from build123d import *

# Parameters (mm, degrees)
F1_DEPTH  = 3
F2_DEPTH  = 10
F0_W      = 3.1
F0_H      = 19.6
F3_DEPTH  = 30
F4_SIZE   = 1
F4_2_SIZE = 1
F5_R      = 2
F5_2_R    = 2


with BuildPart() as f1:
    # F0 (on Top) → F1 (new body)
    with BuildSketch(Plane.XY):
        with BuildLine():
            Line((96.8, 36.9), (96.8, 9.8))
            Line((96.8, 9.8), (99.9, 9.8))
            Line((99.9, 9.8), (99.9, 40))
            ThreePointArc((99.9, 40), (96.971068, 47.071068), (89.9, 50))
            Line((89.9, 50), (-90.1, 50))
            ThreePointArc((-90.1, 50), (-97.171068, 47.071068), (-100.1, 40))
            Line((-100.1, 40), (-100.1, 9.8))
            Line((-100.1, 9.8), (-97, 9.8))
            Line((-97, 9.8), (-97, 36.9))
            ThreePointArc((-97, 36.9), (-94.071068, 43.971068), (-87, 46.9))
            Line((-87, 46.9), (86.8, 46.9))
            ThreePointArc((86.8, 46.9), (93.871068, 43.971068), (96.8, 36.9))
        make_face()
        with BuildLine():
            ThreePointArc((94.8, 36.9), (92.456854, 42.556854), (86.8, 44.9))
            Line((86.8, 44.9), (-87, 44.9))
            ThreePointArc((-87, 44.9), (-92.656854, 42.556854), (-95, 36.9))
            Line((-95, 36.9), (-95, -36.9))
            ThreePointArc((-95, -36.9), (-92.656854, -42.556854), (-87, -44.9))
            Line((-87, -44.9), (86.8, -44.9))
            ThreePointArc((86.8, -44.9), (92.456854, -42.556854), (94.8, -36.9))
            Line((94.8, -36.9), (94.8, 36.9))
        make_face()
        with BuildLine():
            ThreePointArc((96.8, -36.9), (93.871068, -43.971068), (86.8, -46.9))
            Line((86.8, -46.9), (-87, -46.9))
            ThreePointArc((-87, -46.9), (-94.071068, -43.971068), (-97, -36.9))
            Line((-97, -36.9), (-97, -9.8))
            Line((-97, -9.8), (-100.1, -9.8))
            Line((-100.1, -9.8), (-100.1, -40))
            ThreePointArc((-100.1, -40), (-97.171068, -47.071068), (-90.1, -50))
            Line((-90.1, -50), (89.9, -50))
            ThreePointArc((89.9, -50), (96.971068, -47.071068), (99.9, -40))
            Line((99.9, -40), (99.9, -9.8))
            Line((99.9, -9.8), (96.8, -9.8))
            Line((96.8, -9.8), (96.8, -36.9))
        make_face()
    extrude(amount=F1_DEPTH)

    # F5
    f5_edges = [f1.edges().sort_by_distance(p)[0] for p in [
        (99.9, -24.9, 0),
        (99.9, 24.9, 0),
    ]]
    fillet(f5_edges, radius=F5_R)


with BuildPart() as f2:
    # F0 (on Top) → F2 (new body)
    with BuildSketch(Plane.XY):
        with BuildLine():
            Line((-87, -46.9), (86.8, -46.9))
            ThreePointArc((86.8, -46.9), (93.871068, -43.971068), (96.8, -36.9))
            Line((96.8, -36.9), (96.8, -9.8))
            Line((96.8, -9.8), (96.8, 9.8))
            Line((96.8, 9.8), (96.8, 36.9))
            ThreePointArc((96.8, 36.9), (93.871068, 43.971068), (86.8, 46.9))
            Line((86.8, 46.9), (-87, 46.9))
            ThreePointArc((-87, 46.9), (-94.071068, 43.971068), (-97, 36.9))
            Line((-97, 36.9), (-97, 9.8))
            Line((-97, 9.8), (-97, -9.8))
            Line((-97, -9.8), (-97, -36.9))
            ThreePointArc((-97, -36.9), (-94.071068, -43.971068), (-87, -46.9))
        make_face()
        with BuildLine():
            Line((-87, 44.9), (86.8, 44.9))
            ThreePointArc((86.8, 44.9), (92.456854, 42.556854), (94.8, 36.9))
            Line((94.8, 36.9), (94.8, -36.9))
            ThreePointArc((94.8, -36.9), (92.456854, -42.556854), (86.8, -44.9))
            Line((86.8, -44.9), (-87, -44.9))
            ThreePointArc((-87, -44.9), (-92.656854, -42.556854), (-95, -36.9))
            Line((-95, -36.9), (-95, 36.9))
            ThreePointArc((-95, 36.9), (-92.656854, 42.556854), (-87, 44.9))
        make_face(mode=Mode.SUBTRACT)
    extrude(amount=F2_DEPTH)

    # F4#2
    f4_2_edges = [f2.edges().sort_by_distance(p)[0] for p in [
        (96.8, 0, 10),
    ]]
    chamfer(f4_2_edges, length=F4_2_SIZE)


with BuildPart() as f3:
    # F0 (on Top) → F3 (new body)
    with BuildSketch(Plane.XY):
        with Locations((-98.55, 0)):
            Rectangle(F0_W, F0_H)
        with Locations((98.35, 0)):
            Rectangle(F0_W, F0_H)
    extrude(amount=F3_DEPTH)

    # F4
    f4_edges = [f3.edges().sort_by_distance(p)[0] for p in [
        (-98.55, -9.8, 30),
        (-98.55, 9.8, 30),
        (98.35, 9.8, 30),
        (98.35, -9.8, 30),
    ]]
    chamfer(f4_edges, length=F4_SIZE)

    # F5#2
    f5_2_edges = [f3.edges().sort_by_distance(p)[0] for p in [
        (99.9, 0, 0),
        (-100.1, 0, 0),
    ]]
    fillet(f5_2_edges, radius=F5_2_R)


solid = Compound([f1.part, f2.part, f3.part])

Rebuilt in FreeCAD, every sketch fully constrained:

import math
import FreeCAD as App
import Part
import Sketcher
from FreeCAD import Vector
Q = App.Units.Quantity


def edges_at(feature, points):
    """Names of the edges that pass closest to the given points."""
    edges = feature.Shape.Edges
    near = lambda p: min(range(len(edges)), key=lambda i: edges[i].distToShape(Part.Vertex(*p))[0])
    return sorted({f"Edge{near(p) + 1}" for p in points})


def add_polygon(sketch, points):
    """Adds a closed chain of lines whose ends are joined by coincident constraints."""
    first, n = sketch.GeometryCount, len(points)
    for a, b in zip(points, points[1:] + points[:1]):
        sketch.addGeometry(Part.LineSegment(App.Vector(*a, 0), App.Vector(*b, 0)), False)
    for i in range(n):
        sketch.addConstraint(Sketcher.Constraint("Coincident", first + i, 2, first + (i + 1) % n, 1))

doc = App.newDocument("Part")
params = doc.addObject("Spreadsheet::Sheet", "Params")
for row, (alias, value) in enumerate([
    ("sketch1_radius", "9.999999 mm"),
    ("sketch1_radius2", "8.000001 mm"),
    ("sketch1_width", "180 mm"),
    ("sketch1_width2", "3.1 mm"),
    ("sketch1_height", "27.1 mm"),
    ("pad1_length", "3 mm"),
    ("fillet_radius", "2 mm"),
    ("sketch2_radius", "9.999999 mm"),
    ("sketch2_radius2", "8.000001 mm"),
    ("sketch2_width", "173.8 mm"),
    ("sketch2_height", "73.8 mm"),
    ("pad2_length", "10 mm"),
    ("chamfer_size", "1 mm"),
    ("sketch3_width", "3.1 mm"),
    ("sketch3_height", "19.6 mm"),
    ("pad3_length", "30 mm"),
    ("chamfer2_size", "1 mm"),
    ("fillet2_radius", "2 mm"),
], start=1):
    params.set(f"A{row}", alias)
    params.set(f"B{row}", "=" + value)
    params.setAlias(f"B{row}", alias)

body = doc.addObject("PartDesign::Body", "Body")
body.AllowCompound = True

# Sketch on XY plane
sketch1 = doc.addObject("Sketcher::SketchObject", "Sketch")
body.addObject(sketch1)
sketch1.AttachmentSupport = (doc.XY_Plane, [""])
sketch1.MapMode = "FlatFace"
sketch1.addGeometry([
    Part.LineSegment(Vector(96.8, 36.9, 0), Vector(96.8, 9.8, 0)),  # 0
    Part.LineSegment(Vector(96.8, 9.8, 0), Vector(99.9, 9.8, 0)),  # 1
    Part.LineSegment(Vector(99.9, 9.8, 0), Vector(99.9, 40, 0)),  # 2
    Part.ArcOfCircle(Part.Circle(Vector(89.9, 40, 0), Vector(0, 0, 1), 10), math.radians(0), math.radians(90)),  # 3
    Part.LineSegment(Vector(89.9, 50, 0), Vector(-90.1, 50, 0)),  # 4
    Part.ArcOfCircle(Part.Circle(Vector(-90.1, 40, 0), Vector(0, 0, 1), 10), math.radians(90), math.radians(180)),  # 5
    Part.LineSegment(Vector(-100.1, 40, 0), Vector(-100.1, 9.8, 0)),  # 6
    Part.LineSegment(Vector(-100.1, 9.8, 0), Vector(-97, 9.8, 0)),  # 7
    Part.LineSegment(Vector(-97, 9.8, 0), Vector(-97, 36.9, 0)),  # 8
    Part.ArcOfCircle(Part.Circle(Vector(-87, 36.9, 0), Vector(0, 0, 1), 10), math.radians(90), math.radians(180)),  # 9
    Part.LineSegment(Vector(-87, 46.9, 0), Vector(86.8, 46.9, 0)),  # 10
    Part.ArcOfCircle(Part.Circle(Vector(86.8, 36.9, 0), Vector(0, 0, 1), 10), math.radians(0), math.radians(90)),  # 11
    Part.ArcOfCircle(Part.Circle(Vector(86.8, 36.9, 0), Vector(0, 0, 1), 8), math.radians(0), math.radians(90)),  # 12
    Part.LineSegment(Vector(86.8, 44.9, 0), Vector(-87, 44.9, 0)),  # 13
    Part.ArcOfCircle(Part.Circle(Vector(-87, 36.9, 0), Vector(0, 0, 1), 8), math.radians(90), math.radians(180)),  # 14
    Part.LineSegment(Vector(-95, 36.9, 0), Vector(-95, -36.9, 0)),  # 15
    Part.ArcOfCircle(Part.Circle(Vector(-87, -36.9, 0), Vector(0, 0, 1), 8), math.radians(-180), math.radians(-90)),  # 16
    Part.LineSegment(Vector(-87, -44.9, 0), Vector(86.8, -44.9, 0)),  # 17
    Part.ArcOfCircle(Part.Circle(Vector(86.8, -36.9, 0), Vector(0, 0, 1), 8), math.radians(-90), math.radians(0)),  # 18
    Part.LineSegment(Vector(94.8, -36.9, 0), Vector(94.8, 36.9, 0)),  # 19
    Part.ArcOfCircle(Part.Circle(Vector(86.8, -36.9, 0), Vector(0, 0, 1), 10), math.radians(-90), math.radians(0)),  # 20
    Part.LineSegment(Vector(86.8, -46.9, 0), Vector(-87, -46.9, 0)),  # 21
    Part.ArcOfCircle(Part.Circle(Vector(-87, -36.9, 0), Vector(0, 0, 1), 10), math.radians(180), math.radians(270)),  # 22
    Part.LineSegment(Vector(-97, -36.9, 0), Vector(-97, -9.8, 0)),  # 23
    Part.LineSegment(Vector(-97, -9.8, 0), Vector(-100.1, -9.8, 0)),  # 24
    Part.LineSegment(Vector(-100.1, -9.8, 0), Vector(-100.1, -40, 0)),  # 25
    Part.ArcOfCircle(Part.Circle(Vector(-90.1, -40, 0), Vector(0, 0, 1), 10), math.radians(180), math.radians(270)),  # 26
    Part.LineSegment(Vector(-90.1, -50, 0), Vector(89.9, -50, 0)),  # 27
    Part.ArcOfCircle(Part.Circle(Vector(89.9, -40, 0), Vector(0, 0, 1), 10), math.radians(-90), math.radians(0)),  # 28
    Part.LineSegment(Vector(99.9, -40, 0), Vector(99.9, -9.8, 0)),  # 29
    Part.LineSegment(Vector(99.9, -9.8, 0), Vector(96.8, -9.8, 0)),  # 30
    Part.LineSegment(Vector(96.8, -9.8, 0), Vector(96.8, -36.9, 0)),  # 31
], False)
sketch1.addConstraint([
    Sketcher.Constraint("Coincident", 0, 2, 1, 1),
    Sketcher.Constraint("Coincident", 1, 2, 2, 1),
    Sketcher.Constraint("Tangent", 2, 2, 3, 1),
    Sketcher.Constraint("Tangent", 3, 2, 4, 1),
    Sketcher.Constraint("Tangent", 4, 2, 5, 1),
    Sketcher.Constraint("Tangent", 5, 2, 6, 1),
    Sketcher.Constraint("Coincident", 6, 2, 7, 1),
    Sketcher.Constraint("Coincident", 7, 2, 8, 1),
    Sketcher.Constraint("Tangent", 8, 2, 9, 2),
    Sketcher.Constraint("Tangent", 9, 1, 10, 1),
    Sketcher.Constraint("Tangent", 10, 2, 11, 2),
    Sketcher.Constraint("Tangent", 11, 1, 0, 1),
    Sketcher.Constraint("Tangent", 12, 2, 13, 1),
    Sketcher.Constraint("Tangent", 13, 2, 14, 1),
    Sketcher.Constraint("Tangent", 14, 2, 15, 1),
    Sketcher.Constraint("Tangent", 15, 2, 16, 1),
    Sketcher.Constraint("Tangent", 16, 2, 17, 1),
    Sketcher.Constraint("Tangent", 17, 2, 18, 1),
    Sketcher.Constraint("Tangent", 18, 2, 19, 1),
    Sketcher.Constraint("Tangent", 19, 2, 12, 1),
    Sketcher.Constraint("Tangent", 20, 1, 21, 1),
    Sketcher.Constraint("Tangent", 21, 2, 22, 2),
    Sketcher.Constraint("Tangent", 22, 1, 23, 1),
    Sketcher.Constraint("Coincident", 23, 2, 24, 1),
    Sketcher.Constraint("Coincident", 24, 2, 25, 1),
    Sketcher.Constraint("Tangent", 25, 2, 26, 1),
    Sketcher.Constraint("Tangent", 26, 2, 27, 1),
    Sketcher.Constraint("Tangent", 27, 2, 28, 1),
    Sketcher.Constraint("Tangent", 28, 2, 29, 1),
    Sketcher.Constraint("Coincident", 29, 2, 30, 1),
    Sketcher.Constraint("Coincident", 30, 2, 31, 1),
    Sketcher.Constraint("Tangent", 31, 2, 20, 2),
    Sketcher.Constraint("Vertical", 0),
    Sketcher.Constraint("Horizontal", 1),
    Sketcher.Constraint("Vertical", 2),
    Sketcher.Constraint("Horizontal", 4),
    Sketcher.Constraint("Vertical", 6),
    Sketcher.Constraint("Horizontal", 7),
    Sketcher.Constraint("Vertical", 8),
    Sketcher.Constraint("Horizontal", 10),
    Sketcher.Constraint("Horizontal", 13),
    Sketcher.Constraint("Vertical", 15),
    Sketcher.Constraint("Horizontal", 17),
    Sketcher.Constraint("Vertical", 19),
    Sketcher.Constraint("Horizontal", 21),
    Sketcher.Constraint("Vertical", 23),
    Sketcher.Constraint("Horizontal", 24),
    Sketcher.Constraint("Vertical", 25),
    Sketcher.Constraint("Horizontal", 27),
    Sketcher.Constraint("Vertical", 29),
    Sketcher.Constraint("Horizontal", 30),
    Sketcher.Constraint("Vertical", 31),
    Sketcher.Constraint("Coincident", 12, 3, 11, 3),
    Sketcher.Constraint("Coincident", 14, 3, 9, 3),
    Sketcher.Constraint("Coincident", 20, 3, 18, 3),
    Sketcher.Constraint("Coincident", 22, 3, 16, 3),
    Sketcher.Constraint("Equal", 3, 5),
    Sketcher.Constraint("Equal", 5, 9),
    Sketcher.Constraint("Equal", 9, 11),
    Sketcher.Constraint("Equal", 14, 16),
    Sketcher.Constraint("Equal", 16, 18),
    Sketcher.Constraint("Equal", 11, 20),
    Sketcher.Constraint("Equal", 22, 26),
    Sketcher.Constraint("Equal", 26, 28),
    Sketcher.Constraint("Symmetric", 5, 3, 26, 3, -1),
    Sketcher.Constraint("Symmetric", 1, 2, 29, 2, -1),
    Sketcher.Constraint("Horizontal", 1, 2, 6, 2),
    Sketcher.Constraint("Horizontal", 24, 2, 29, 2),
    Sketcher.Constraint("Equal", 1, 7),
    Sketcher.Constraint("Equal", 8, 23),
    Sketcher.Constraint("Radius", 3, Q("9.999999 mm")),
    Sketcher.Constraint("Radius", 12, Q("8.000001 mm")),
    Sketcher.Constraint("DistanceX", 4, 2, 4, 1, Q("180 mm")),
    Sketcher.Constraint("DistanceX", 1, 1, 1, 2, Q("3.1 mm")),
    Sketcher.Constraint("DistanceY", 0, 2, 0, 1, Q("27.1 mm")),
    Sketcher.Constraint("DistanceY", 2, 1, 2, 2, Q("30.2 mm")),
    Sketcher.Constraint("DistanceY", 15, 2, 15, 1, Q("73.8 mm")),
    Sketcher.Constraint("DistanceX", 9, 3, -1, 1, Q("87.000001 mm")),
])
sketch1.setExpression("Constraints[70]", "Params.sketch1_radius")
sketch1.setExpression("Constraints[71]", "Params.sketch1_radius2")
sketch1.setExpression("Constraints[72]", "Params.sketch1_width")
sketch1.setExpression("Constraints[73]", "Params.sketch1_width2")
sketch1.setExpression("Constraints[74]", "Params.sketch1_height")
pad1 = doc.addObject("PartDesign::Pad", "Pad")
body.addObject(pad1)
pad1.Profile = sketch1
pad1.setExpression("Length", "Params.pad1_length")
doc.recompute()

fillet = doc.addObject("PartDesign::Fillet", "Fillet")
body.addObject(fillet)
fillet.Base = (pad1, edges_at(pad1, [(99.9, -24.9, 0), (99.9, 24.9, 0)]))
fillet.setExpression("Radius", "Params.fillet_radius")
body2 = doc.addObject("PartDesign::Body", "Body001")

# Sketch on XY plane
sketch2 = doc.addObject("Sketcher::SketchObject", "Sketch001")
body2.addObject(sketch2)
sketch2.AttachmentSupport = (doc.getObject("XY_Plane001"), [""])
sketch2.MapMode = "FlatFace"
sketch2.addGeometry([
    Part.LineSegment(Vector(-87, -47, 0), Vector(87, -47, 0)),  # 0
    Part.ArcOfCircle(Part.Circle(Vector(87, -37, 0), Vector(0, 0, 1), 10), math.radians(-90), math.radians(0)),  # 1
    Part.LineSegment(Vector(97, -37, 0), Vector(97, 37, 0)),  # 2
    Part.ArcOfCircle(Part.Circle(Vector(87, 37, 0), Vector(0, 0, 1), 10), math.radians(0), math.radians(90)),  # 3
    Part.LineSegment(Vector(87, 47, 0), Vector(-87, 47, 0)),  # 4
    Part.ArcOfCircle(Part.Circle(Vector(-87, 37, 0), Vector(0, 0, 1), 10), math.radians(90), math.radians(180)),  # 5
    Part.LineSegment(Vector(-97, 37, 0), Vector(-97, -37, 0)),  # 6
    Part.ArcOfCircle(Part.Circle(Vector(-87, -37, 0), Vector(0, 0, 1), 10), math.radians(180), math.radians(270)),  # 7
    Part.ArcOfCircle(Part.Circle(Vector(-87, 37, 0), Vector(0, 0, 1), 8), math.radians(90), math.radians(180)),  # 8
    Part.LineSegment(Vector(-87, 45, 0), Vector(87, 45, 0)),  # 9
    Part.ArcOfCircle(Part.Circle(Vector(87, 37, 0), Vector(0, 0, 1), 8), math.radians(0), math.radians(90)),  # 10
    Part.LineSegment(Vector(95, 37, 0), Vector(95, -37, 0)),  # 11
    Part.ArcOfCircle(Part.Circle(Vector(87, -37, 0), Vector(0, 0, 1), 8), math.radians(-90), math.radians(0)),  # 12
    Part.LineSegment(Vector(87, -45, 0), Vector(-87, -45, 0)),  # 13
    Part.ArcOfCircle(Part.Circle(Vector(-87, -37, 0), Vector(0, 0, 1), 8), math.radians(-180), math.radians(-90)),  # 14
    Part.LineSegment(Vector(-95, -37, 0), Vector(-95, 37, 0)),  # 15
], False)
sketch2.addConstraint([
    Sketcher.Constraint("Tangent", 0, 2, 1, 1),
    Sketcher.Constraint("Tangent", 1, 2, 2, 1),
    Sketcher.Constraint("Tangent", 2, 2, 3, 1),
    Sketcher.Constraint("Tangent", 3, 2, 4, 1),
    Sketcher.Constraint("Tangent", 4, 2, 5, 1),
    Sketcher.Constraint("Tangent", 5, 2, 6, 1),
    Sketcher.Constraint("Tangent", 6, 2, 7, 1),
    Sketcher.Constraint("Tangent", 7, 2, 0, 1),
    Sketcher.Constraint("Tangent", 8, 1, 9, 1),
    Sketcher.Constraint("Tangent", 9, 2, 10, 2),
    Sketcher.Constraint("Tangent", 10, 1, 11, 1),
    Sketcher.Constraint("Tangent", 11, 2, 12, 2),
    Sketcher.Constraint("Tangent", 12, 1, 13, 1),
    Sketcher.Constraint("Tangent", 13, 2, 14, 2),
    Sketcher.Constraint("Tangent", 14, 1, 15, 1),
    Sketcher.Constraint("Tangent", 15, 2, 8, 2),
    Sketcher.Constraint("Horizontal", 0),
    Sketcher.Constraint("Vertical", 2),
    Sketcher.Constraint("Horizontal", 4),
    Sketcher.Constraint("Vertical", 6),
    Sketcher.Constraint("Horizontal", 9),
    Sketcher.Constraint("Vertical", 11),
    Sketcher.Constraint("Horizontal", 13),
    Sketcher.Constraint("Vertical", 15),
    Sketcher.Constraint("Coincident", 8, 3, 5, 3),
    Sketcher.Constraint("Coincident", 10, 3, 3, 3),
    Sketcher.Constraint("Coincident", 12, 3, 1, 3),
    Sketcher.Constraint("Equal", 1, 3),
    Sketcher.Constraint("Equal", 3, 5),
    Sketcher.Constraint("Equal", 5, 7),
    Sketcher.Constraint("Equal", 12, 14),
    Sketcher.Constraint("Radius", 1, Q("9.999999 mm")),
    Sketcher.Constraint("Radius", 8, Q("8.000001 mm")),
    Sketcher.Constraint("DistanceX", 0, 1, 0, 2, Q("173.8 mm")),
    Sketcher.Constraint("DistanceY", 2, 1, 2, 2, Q("73.8 mm")),
    Sketcher.Constraint("DistanceX", 5, 3, -1, 1, Q("87.000001 mm")),
    Sketcher.Constraint("DistanceY", 1, 3, -1, 1, Q("36.900001 mm")),
])
sketch2.setExpression("Constraints[31]", "Params.sketch2_radius")
sketch2.setExpression("Constraints[32]", "Params.sketch2_radius2")
sketch2.setExpression("Constraints[33]", "Params.sketch2_width")
sketch2.setExpression("Constraints[34]", "Params.sketch2_height")
pad2 = doc.addObject("PartDesign::Pad", "Pad001")
body2.addObject(pad2)
pad2.Profile = sketch2
pad2.setExpression("Length", "Params.pad2_length")
doc.recompute()

chamfer = doc.addObject("PartDesign::Chamfer", "Chamfer")
body2.addObject(chamfer)
chamfer.Base = (pad2, edges_at(pad2, [(96.8, 0, 10)]))
chamfer.setExpression("Size", "Params.chamfer_size")
body3 = doc.addObject("PartDesign::Body", "Body002")
body3.AllowCompound = True

# Sketch on XY plane
sketch3 = doc.addObject("Sketcher::SketchObject", "Sketch002")
body3.addObject(sketch3)
sketch3.AttachmentSupport = (doc.getObject("XY_Plane002"), [""])
sketch3.MapMode = "FlatFace"
add_polygon(sketch3, [(-100.1, 9.8), (-100.1, -9.8), (-97, -9.8), (-97, 9.8)])  # lines 0-3
add_polygon(sketch3, [(96.8, 9.8), (96.8, -9.8), (99.9, -9.8), (99.9, 9.8)])  # lines 4-7
sketch3.addConstraint([
    Sketcher.Constraint("Vertical", 0),
    Sketcher.Constraint("Horizontal", 1),
    Sketcher.Constraint("Vertical", 2),
    Sketcher.Constraint("Horizontal", 3),
    Sketcher.Constraint("Vertical", 4),
    Sketcher.Constraint("Horizontal", 5),
    Sketcher.Constraint("Vertical", 6),
    Sketcher.Constraint("Horizontal", 7),
    Sketcher.Constraint("Horizontal", 1, 2, 4, 2),
    Sketcher.Constraint("Horizontal", 3, 2, 6, 2),
    Sketcher.Constraint("Equal", 3, 5),
    Sketcher.Constraint("DistanceX", 1, 1, 1, 2, Q("3.1 mm")),
    Sketcher.Constraint("DistanceY", 0, 2, 0, 1, Q("19.6 mm")),
    Sketcher.Constraint("DistanceX", 1, 2, -1, 1, Q("97 mm")),
    Sketcher.Constraint("DistanceX", 0, 2, 5, 2, Q("200 mm")),
    Sketcher.Constraint("DistanceY", 0, 2, -1, 1, Q("9.8 mm")),
])
sketch3.setExpression("Constraints[19]", "Params.sketch3_width")
sketch3.setExpression("Constraints[20]", "Params.sketch3_height")
pad3 = doc.addObject("PartDesign::Pad", "Pad002")
body3.addObject(pad3)
pad3.Profile = sketch3
pad3.setExpression("Length", "Params.pad3_length")
doc.recompute()

chamfer2 = doc.addObject("PartDesign::Chamfer", "Chamfer001")
body3.addObject(chamfer2)
chamfer2.Base = (pad3, edges_at(pad3, [
    (-98.55, -9.8, 30),
    (-98.55, 9.8, 30),
    (98.35, 9.8, 30),
    (98.35, -9.8, 30),
]))
chamfer2.setExpression("Size", "Params.chamfer2_size")
doc.recompute()

fillet2 = doc.addObject("PartDesign::Fillet", "Fillet001")
body3.addObject(fillet2)
fillet2.Base = (chamfer2, edges_at(chamfer2, [(99.9, 0, 0), (-100.1, 0, 0)]))
fillet2.setExpression("Radius", "Params.fillet2_radius")

doc.recompute()
